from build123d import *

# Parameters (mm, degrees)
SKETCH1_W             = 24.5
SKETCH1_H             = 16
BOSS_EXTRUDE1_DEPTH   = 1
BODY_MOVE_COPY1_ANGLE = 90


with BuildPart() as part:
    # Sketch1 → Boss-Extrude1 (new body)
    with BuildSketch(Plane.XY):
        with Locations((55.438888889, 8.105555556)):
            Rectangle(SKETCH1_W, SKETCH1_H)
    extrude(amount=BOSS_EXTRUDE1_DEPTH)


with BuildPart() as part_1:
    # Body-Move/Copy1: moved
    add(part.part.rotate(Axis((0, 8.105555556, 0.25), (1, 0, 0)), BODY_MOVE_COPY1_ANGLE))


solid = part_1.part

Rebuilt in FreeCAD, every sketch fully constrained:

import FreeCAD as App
import Part
import Sketcher
from FreeCAD import Vector
Q = App.Units.Quantity


def add_polygon(sketch, points):
    """Adds a closed chain of lines whose ends are joined by coincident constraints."""
    first, n = sketch.GeometryCount, len(points)
    for a, b in zip(points, points[1:] + points[:1]):
        sketch.addGeometry(Part.LineSegment(App.Vector(*a, 0), App.Vector(*b, 0)), False)
    for i in range(n):
        sketch.addConstraint(Sketcher.Constraint("Coincident", first + i, 2, first + (i + 1) % n, 1))

doc = App.newDocument("Part")
body = doc.addObject("PartDesign::Body", "Body")

# Sketch on XY plane
sketch1 = body.newObject("Sketcher::SketchObject", "Sketch")
sketch1.AttachmentSupport = (doc.getObject("XY_Plane"), [""])
sketch1.MapMode = "FlatFace"
add_polygon(sketch1, [(43, 16), (43, 0), (68, 0), (68, 16)])  # lines 0-3
sketch1.addConstraint([
    Sketcher.Constraint("Vertical", 0),
    Sketcher.Constraint("Horizontal", 1),
    Sketcher.Constraint("Vertical", 2),
    Sketcher.Constraint("Horizontal", 3),
    Sketcher.Constraint("DistanceY", 0, 2, 0, 1, Q("16 mm")),
    Sketcher.Constraint("DistanceX", 1, 1, 1, 2, Q("24.5 mm")),
    Sketcher.Constraint("DistanceX", -1, 1, 0, 2, Q("43.188889 mm")),
    Sketcher.Constraint("DistanceY", -1, 1, 0, 2, Q("0.105556 mm")),
])
pad1 = body.newObject("PartDesign::Pad", "Pad")
pad1.Profile = sketch1
pad1.Length = 1
body2 = doc.addObject("PartDesign::Body", "Body001")
doc.recompute()

body.Placement = App.Placement(Vector(0, 8.355556, -7.855556), App.Rotation(Vector(1, 0, 0), 90))
boolean = body2.newObject("PartDesign::Boolean", "Boolean")
boolean.Type = "Fuse"
boolean.addObjects([body])

doc.recompute()
